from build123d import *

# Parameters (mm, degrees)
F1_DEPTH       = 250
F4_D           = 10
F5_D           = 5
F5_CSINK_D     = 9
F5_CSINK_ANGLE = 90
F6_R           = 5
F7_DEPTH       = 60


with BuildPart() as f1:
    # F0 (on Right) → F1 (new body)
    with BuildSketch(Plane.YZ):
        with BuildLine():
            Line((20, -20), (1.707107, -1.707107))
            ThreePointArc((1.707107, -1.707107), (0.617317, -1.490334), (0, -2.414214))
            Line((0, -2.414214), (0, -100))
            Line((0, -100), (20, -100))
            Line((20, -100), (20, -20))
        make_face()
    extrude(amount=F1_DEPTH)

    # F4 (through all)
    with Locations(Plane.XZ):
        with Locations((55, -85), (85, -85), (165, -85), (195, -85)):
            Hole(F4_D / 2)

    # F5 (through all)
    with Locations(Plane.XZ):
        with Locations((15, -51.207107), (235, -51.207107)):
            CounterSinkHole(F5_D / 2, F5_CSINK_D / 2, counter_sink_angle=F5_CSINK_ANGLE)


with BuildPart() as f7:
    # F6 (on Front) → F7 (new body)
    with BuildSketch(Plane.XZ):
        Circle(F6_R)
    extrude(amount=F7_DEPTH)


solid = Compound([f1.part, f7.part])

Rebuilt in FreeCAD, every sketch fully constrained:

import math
import FreeCAD as App
import Part
import Sketcher
from FreeCAD import Vector
Q = App.Units.Quantity

doc = App.newDocument("Part")
body = doc.addObject("PartDesign::Body", "Body")

# Sketch on YZ plane
sketch1 = body.newObject("Sketcher::SketchObject", "Sketch")
sketch1.AttachmentSupport = (doc.getObject("YZ_Plane"), [""])
sketch1.MapMode = "FlatFace"
sketch1.addGeometry([
    Part.LineSegment(Vector(20, -20, 0), Vector(1.7, -1.7, 0)),  # 0
    Part.ArcOfCircle(Part.Circle(Vector(1, -2.4, 0), Vector(0, 0, 1), 1), math.radians(45), math.radians(180)),  # 1
    Part.LineSegment(Vector(0, -2.4, 0), Vector(0, -100, 0)),  # 2
    Part.LineSegment(Vector(0, -100, 0), Vector(20, -100, 0)),  # 3
    Part.LineSegment(Vector(20, -100, 0), Vector(20, -20, 0)),  # 4
], False)
sketch1.addConstraint([
    Sketcher.Constraint("Tangent", 0, 2, 1, 1),
    Sketcher.Constraint("Tangent", 1, 2, 2, 1),
    Sketcher.Constraint("Coincident", 2, 2, 3, 1),
    Sketcher.Constraint("Coincident", 3, 2, 4, 1),
    Sketcher.Constraint("Coincident", 4, 2, 0, 1),
    Sketcher.Constraint("Vertical", 2),
    Sketcher.Constraint("Horizontal", 3),
    Sketcher.Constraint("Vertical", 4),
    Sketcher.Constraint("PointOnObject", 1, 2, -2),
    Sketcher.Constraint("Radius", 1, 1.0),
    Sketcher.Constraint("DistanceX", 3, 1, 3, 2, 20.0),
    Sketcher.Constraint("DistanceY", 4, 1, 4, 2, 80.0),
    Sketcher.Constraint("Angle", 0, Q("135 deg")),
    Sketcher.Constraint("DistanceY", 2, 2, -1, 1, 100.0),
])
pad1 = body.newObject("PartDesign::Pad", "Pad")
pad1.Profile = sketch1
pad1.Length = 250

# Sketch on XZ plane
sketch2 = body.newObject("Sketcher::SketchObject", "Sketch001")
sketch2.AttachmentSupport = (doc.getObject("XZ_Plane"), [""])
sketch2.MapMode = "FlatFace"
sketch2.addGeometry([
    Part.Circle(Vector(55, -85, 0), Vector(0, 0, 1), 5),
    Part.Circle(Vector(85, -85, 0), Vector(0, 0, 1), 5),
    Part.Circle(Vector(165, -85, 0), Vector(0, 0, 1), 5),
    Part.Circle(Vector(195, -85, 0), Vector(0, 0, 1), 5),
], False)
sketch2.addConstraint([
    Sketcher.Constraint("Equal", 0, 1),
    Sketcher.Constraint("Equal", 1, 2),
    Sketcher.Constraint("Equal", 2, 3),
    Sketcher.Constraint("Horizontal", 0, 3, 1, 3),
    Sketcher.Constraint("Horizontal", 1, 3, 2, 3),
    Sketcher.Constraint("Horizontal", 2, 3, 3, 3),
    Sketcher.Constraint("Diameter", 0, 10.0),
    Sketcher.Constraint("DistanceX", -1, 1, 0, 3, 55.0),
    Sketcher.Constraint("DistanceY", 0, 3, -1, 1, 85.0),
    Sketcher.Constraint("DistanceX", -1, 1, 1, 3, 85.0),
    Sketcher.Constraint("DistanceX", -1, 1, 2, 3, 165.0),
    Sketcher.Constraint("DistanceX", -1, 1, 3, 3, 195.0),
])
doc.recompute()
hole = body.newObject("PartDesign::Hole", "Hole")
hole.Profile = sketch2
hole.ThreadType = "None"
hole.Diameter = 10
hole.DepthType = "ThroughAll"

# Sketch on XZ plane
sketch3 = body.newObject("Sketcher::SketchObject", "Sketch002")
sketch3.AttachmentSupport = (doc.getObject("XZ_Plane"), [""])
sketch3.MapMode = "FlatFace"
sketch3.addGeometry([
    Part.Circle(Vector(15, -51.2, 0), Vector(0, 0, 1), 2.5),
    Part.Circle(Vector(235, -51.2, 0), Vector(0, 0, 1), 2.5),
], False)
sketch3.addConstraint([
    Sketcher.Constraint("Equal", 0, 1),
    Sketcher.Constraint("Horizontal", 0, 3, 1, 3),
    Sketcher.Constraint("Diameter", 0, 5.0),
    Sketcher.Constraint("DistanceX", -1, 1, 0, 3, 15.0),
    Sketcher.Constraint("DistanceX", -1, 1, 1, 3, 235.0),
    Sketcher.Constraint("DistanceY", 0, 3, -1, 1, 51.207107),
])
doc.recompute()
hole2 = body.newObject("PartDesign::Hole", "Hole001")
hole2.Profile = sketch3
hole2.ThreadType = "None"
hole2.Diameter = 5
hole2.DepthType = "ThroughAll"
hole2.HoleCutType = "Countersink"
hole2.HoleCutDiameter = 9
hole2.HoleCutCountersinkAngle = 90
body2 = doc.addObject("PartDesign::Body", "Body001")

# Sketch on XZ plane
sketch4 = body2.newObject("Sketcher::SketchObject", "Sketch003")
sketch4.AttachmentSupport = (doc.getObject("XZ_Plane001"), [""])
sketch4.MapMode = "FlatFace"
sketch4.addGeometry(Part.Circle(Vector(0, 0, 0), Vector(0, 0, 1), 5), False)
sketch4.addConstraint([
    Sketcher.Constraint("Coincident", 0, 3, -1, 1),
    Sketcher.Constraint("Diameter", 0, 10.0),
])
pad2 = body2.newObject("PartDesign::Pad", "Pad001")
pad2.Profile = sketch4
pad2.Length = 60

doc.recompute()
